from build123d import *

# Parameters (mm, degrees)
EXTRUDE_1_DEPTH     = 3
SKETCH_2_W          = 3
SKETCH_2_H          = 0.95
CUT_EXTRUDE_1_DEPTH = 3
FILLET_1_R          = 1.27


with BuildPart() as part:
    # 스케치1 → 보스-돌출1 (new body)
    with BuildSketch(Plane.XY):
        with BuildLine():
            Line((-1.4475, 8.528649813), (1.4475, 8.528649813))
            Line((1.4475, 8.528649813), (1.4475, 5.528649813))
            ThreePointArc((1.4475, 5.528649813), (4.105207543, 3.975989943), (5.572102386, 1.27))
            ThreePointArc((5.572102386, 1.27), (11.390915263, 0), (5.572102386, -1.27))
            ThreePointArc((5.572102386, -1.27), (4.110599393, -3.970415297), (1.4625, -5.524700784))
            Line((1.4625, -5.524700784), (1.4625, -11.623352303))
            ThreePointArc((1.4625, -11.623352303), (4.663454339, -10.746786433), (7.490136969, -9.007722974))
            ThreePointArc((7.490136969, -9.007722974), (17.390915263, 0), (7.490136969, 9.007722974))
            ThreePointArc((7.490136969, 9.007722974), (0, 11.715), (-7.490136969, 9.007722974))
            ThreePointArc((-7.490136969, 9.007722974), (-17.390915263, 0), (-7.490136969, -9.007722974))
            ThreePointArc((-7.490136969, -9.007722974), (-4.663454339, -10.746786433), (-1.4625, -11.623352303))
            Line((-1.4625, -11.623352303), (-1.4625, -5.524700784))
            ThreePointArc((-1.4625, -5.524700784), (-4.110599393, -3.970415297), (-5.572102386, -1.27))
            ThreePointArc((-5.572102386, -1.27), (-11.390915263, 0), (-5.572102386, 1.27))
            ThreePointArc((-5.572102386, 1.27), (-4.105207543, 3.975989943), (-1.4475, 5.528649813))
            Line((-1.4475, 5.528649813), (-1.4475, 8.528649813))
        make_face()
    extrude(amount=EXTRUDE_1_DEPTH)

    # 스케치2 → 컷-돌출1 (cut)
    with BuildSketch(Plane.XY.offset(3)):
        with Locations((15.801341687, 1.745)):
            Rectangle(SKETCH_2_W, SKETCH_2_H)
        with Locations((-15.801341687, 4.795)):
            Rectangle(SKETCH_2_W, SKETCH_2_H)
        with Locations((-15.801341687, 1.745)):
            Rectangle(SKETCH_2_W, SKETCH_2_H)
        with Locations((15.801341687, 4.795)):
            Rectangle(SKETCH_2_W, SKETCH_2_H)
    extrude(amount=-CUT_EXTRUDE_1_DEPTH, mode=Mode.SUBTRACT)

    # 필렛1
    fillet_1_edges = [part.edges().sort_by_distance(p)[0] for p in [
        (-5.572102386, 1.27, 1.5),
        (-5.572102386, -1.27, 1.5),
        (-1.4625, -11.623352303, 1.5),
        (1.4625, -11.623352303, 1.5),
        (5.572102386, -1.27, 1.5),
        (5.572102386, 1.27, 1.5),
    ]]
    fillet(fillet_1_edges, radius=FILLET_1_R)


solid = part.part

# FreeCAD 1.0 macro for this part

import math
import FreeCAD as App
import Part
import Sketcher
Q = App.Units.Quantity


def edges_at(feature, points):
    """Names of the edges that pass closest to the given points."""
    edges = feature.Shape.Edges
    near = lambda p: min(range(len(edges)), key=lambda i: edges[i].distToShape(Part.Vertex(*p))[0])
    return sorted({f"Edge{near(p) + 1}" for p in points})

doc = App.newDocument("Part")
params = doc.addObject("Spreadsheet::Sheet", "Params")
for row, (alias, value) in enumerate([
    ("sketch1_radius", "0.12 in"),
    ("sketch1_radius2", "0.225 in"),
    ("pad1_length", "3 mm"),
    ("pocket1_length", "3 mm"),
    ("fillet_radius", "0.05 in"),
], start=1):
    params.set(f"A{row}", alias)
    params.set(f"B{row}", "=" + value)
    params.setAlias(f"B{row}", alias)

body = doc.addObject("PartDesign::Body", "Body")

# Sketch on XY plane
sketch1 = body.newObject("Sketcher::SketchObject", "Sketch")
sketch1.AttachmentSupport = (doc.getObject("XY_Plane"), [""])
sketch1.MapMode = "FlatFace"
sketch1.addGeometry(Part.LineSegment(App.Vector(-1.4475, 8.52865, 0), App.Vector(1.4475, 8.52865, 0)), False)
sketch1.addGeometry(Part.LineSegment(App.Vector(1.4475, 8.52865, 0), App.Vector(1.4475, 5.52865, 0)), False)
sketch1.addGeometry(Part.ArcOfCircle(Part.Circle(App.Vector(0, 0, 0), App.Vector(0, 0, 1), 5.715), math.radians(12.839588), math.radians(75.328259)), False)
sketch1.addGeometry(Part.ArcOfCircle(Part.Circle(App.Vector(8.342915, 0, 0), App.Vector(0, 0, 1), 3.048), math.radians(-155.375682), math.radians(155.375682)), False)
sketch1.addGeometry(Part.ArcOfCircle(Part.Circle(App.Vector(0, 0, 0), App.Vector(0, 0, 1), 5.715), math.radians(-75.172752), math.radians(-12.839588)), False)
sketch1.addGeometry(Part.LineSegment(App.Vector(1.4625, -5.524701, 0), App.Vector(1.4625, -11.623352, 0)), False)
sketch1.addGeometry(Part.ArcOfCircle(Part.Circle(App.Vector(0, 0, 0), App.Vector(0, 0, 1), 11.715), math.radians(-82.828487), math.radians(-50.255667)), False)
sketch1.addGeometry(Part.ArcOfCircle(Part.Circle(App.Vector(8.342915, 0, 0), App.Vector(0, 0, 1), 9.048), math.radians(-95.408182), math.radians(95.408182)), False)
sketch1.addGeometry(Part.ArcOfCircle(Part.Circle(App.Vector(0, 0, 0), App.Vector(0, 0, 1), 11.715), math.radians(50.255667), math.radians(129.744333)), False)
sketch1.addGeometry(Part.ArcOfCircle(Part.Circle(App.Vector(-8.342915, 0, 0), App.Vector(0, 0, 1), 9.048), math.radians(84.591818), math.radians(275.408182)), False)
sketch1.addGeometry(Part.ArcOfCircle(Part.Circle(App.Vector(0, 0, 0), App.Vector(0, 0, 1), 11.715), math.radians(-129.744333), math.radians(-97.171513)), False)
sketch1.addGeometry(Part.LineSegment(App.Vector(-1.4625, -11.623352, 0), App.Vector(-1.4625, -5.524701, 0)), False)
sketch1.addGeometry(Part.ArcOfCircle(Part.Circle(App.Vector(0, 0, 0), App.Vector(0, 0, 1), 5.715), math.radians(-167.160412), math.radians(-104.827248)), False)
sketch1.addGeometry(Part.ArcOfCircle(Part.Circle(App.Vector(-8.342915, 0, 0), App.Vector(0, 0, 1), 3.048), math.radians(24.624318), math.radians(335.375682)), False)
sketch1.addGeometry(Part.ArcOfCircle(Part.Circle(App.Vector(0, 0, 0), App.Vector(0, 0, 1), 5.715), math.radians(104.671741), math.radians(167.160412)), False)
sketch1.addGeometry(Part.LineSegment(App.Vector(-1.4475, 5.52865, 0), App.Vector(-1.4475, 8.52865, 0)), False)
sketch1.addConstraint(Sketcher.Constraint("Coincident", 0, 2, 1, 1))
sketch1.addConstraint(Sketcher.Constraint("Coincident", 1, 2, 2, 2))
sketch1.addConstraint(Sketcher.Constraint("Coincident", 2, 1, 3, 2))
sketch1.addConstraint(Sketcher.Constraint("Coincident", 3, 1, 4, 2))
sketch1.addConstraint(Sketcher.Constraint("Coincident", 4, 1, 5, 1))
sketch1.addConstraint(Sketcher.Constraint("Coincident", 5, 2, 6, 1))
sketch1.addConstraint(Sketcher.Constraint("Coincident", 6, 2, 7, 1))
sketch1.addConstraint(Sketcher.Constraint("Coincident", 7, 2, 8, 1))
sketch1.addConstraint(Sketcher.Constraint("Coincident", 8, 2, 9, 1))
sketch1.addConstraint(Sketcher.Constraint("Coincident", 9, 2, 10, 1))
sketch1.addConstraint(Sketcher.Constraint("Coincident", 10, 2, 11, 1))
sketch1.addConstraint(Sketcher.Constraint("Coincident", 11, 2, 12, 2))
sketch1.addConstraint(Sketcher.Constraint("Coincident", 12, 1, 13, 2))
sketch1.addConstraint(Sketcher.Constraint("Coincident", 13, 1, 14, 2))
sketch1.addConstraint(Sketcher.Constraint("Coincident", 14, 1, 15, 1))
sketch1.addConstraint(Sketcher.Constraint("Coincident", 15, 2, 0, 1))
sketch1.addConstraint(Sketcher.Constraint("Horizontal", 0))
sketch1.addConstraint(Sketcher.Constraint("Vertical", 1))
sketch1.addConstraint(Sketcher.Constraint("Vertical", 5))
sketch1.addConstraint(Sketcher.Constraint("Vertical", 11))
sketch1.addConstraint(Sketcher.Constraint("Vertical", 15))
sketch1.addConstraint(Sketcher.Constraint("Coincident", 2, 3, -1, 1))
sketch1.addConstraint(Sketcher.Constraint("Coincident", 4, 3, -1, 1))
sketch1.addConstraint(Sketcher.Constraint("Coincident", 6, 3, -1, 1))
sketch1.addConstraint(Sketcher.Constraint("Coincident", 8, 3, -1, 1))
sketch1.addConstraint(Sketcher.Constraint("Coincident", 10, 3, -1, 1))
sketch1.addConstraint(Sketcher.Constraint("Coincident", 12, 3, -1, 1))
sketch1.addConstraint(Sketcher.Constraint("Coincident", 14, 3, -1, 1))
sketch1.addConstraint(Sketcher.Constraint("Coincident", 7, 3, 3, 3))
sketch1.addConstraint(Sketcher.Constraint("Coincident", 13, 3, 9, 3))
sketch1.addConstraint(Sketcher.Constraint("Equal", 2, 4))
sketch1.addConstraint(Sketcher.Constraint("Equal", 6, 8))
sketch1.addConstraint(Sketcher.Constraint("Equal", 7, 9))
sketch1.addConstraint(Sketcher.Constraint("Equal", 8, 10))
sketch1.addConstraint(Sketcher.Constraint("Equal", 4, 12))
sketch1.addConstraint(Sketcher.Constraint("Equal", 3, 13))
sketch1.addConstraint(Sketcher.Constraint("Equal", 12, 14))
sketch1.addConstraint(Sketcher.Constraint("Symmetric", 3, 3, 9, 3, -1, 1))
sketch1.addConstraint(Sketcher.Constraint("PointOnObject", 3, 3, -1))
sketch1.addConstraint(Sketcher.Constraint("Horizontal", 5, 2, 10, 2))
sketch1.addConstraint(Sketcher.Constraint("Horizontal", 1, 2, 14, 1))
sketch1.addConstraint(Sketcher.Constraint("Radius", 3, Q("0.12 in")))
sketch1.addConstraint(Sketcher.Constraint("Radius", 2, Q("0.225 in")))
sketch1.addConstraint(Sketcher.Constraint("DistanceY", 3, 1, 2, 1, Q("0.1 in")))
sketch1.addConstraint(Sketcher.Constraint("Radius", 6, Q("11.715 mm")))
sketch1.addConstraint(Sketcher.Constraint("Radius", 7, Q("9.048 mm")))
sketch1.addConstraint(Sketcher.Constraint("DistanceX", 0, 1, 0, 2, Q("2.895 mm")))
sketch1.addConstraint(Sketcher.Constraint("DistanceY", 1, 2, 1, 1, Q("3 mm")))
sketch1.addConstraint(Sketcher.Constraint("DistanceY", 5, 2, 5, 1, Q("6.098652 mm")))
sketch1.setExpression("Constraints[41]", "Params.sketch1_radius")
sketch1.setExpression("Constraints[42]", "Params.sketch1_radius2")
pad1 = body.newObject("PartDesign::Pad", "Pad")
pad1.Profile = sketch1
pad1.setExpression("Length", "Params.pad1_length")

# Sketch on XY plane
sketch2 = body.newObject("Sketcher::SketchObject", "Sketch001")
sketch2.AttachmentSupport = (doc.getObject("XY_Plane"), [""])
sketch2.MapMode = "FlatFace"
sketch2.AttachmentOffset = App.Placement(App.Vector(0, 0, 3), App.Rotation())
sketch2.addGeometry(Part.LineSegment(App.Vector(14.301342, 2.22, 0), App.Vector(14.301342, 1.27, 0)), False)
sketch2.addGeometry(Part.LineSegment(App.Vector(14.301342, 1.27, 0), App.Vector(17.301342, 1.27, 0)), False)
sketch2.addGeometry(Part.LineSegment(App.Vector(17.301342, 1.27, 0), App.Vector(17.301342, 2.22, 0)), False)
sketch2.addGeometry(Part.LineSegment(App.Vector(17.301342, 2.22, 0), App.Vector(14.301342, 2.22, 0)), False)
sketch2.addGeometry(Part.LineSegment(App.Vector(-17.301342, 5.27, 0), App.Vector(-17.301342, 4.32, 0)), False)
sketch2.addGeometry(Part.LineSegment(App.Vector(-17.301342, 4.32, 0), App.Vector(-14.301342, 4.32, 0)), False)
sketch2.addGeometry(Part.LineSegment(App.Vector(-14.301342, 4.32, 0), App.Vector(-14.301342, 5.27, 0)), False)
sketch2.addGeometry(Part.LineSegment(App.Vector(-14.301342, 5.27, 0), App.Vector(-17.301342, 5.27, 0)), False)
sketch2.addGeometry(Part.LineSegment(App.Vector(-17.301342, 2.22, 0), App.Vector(-17.301342, 1.27, 0)), False)
sketch2.addGeometry(Part.LineSegment(App.Vector(-17.301342, 1.27, 0), App.Vector(-14.301342, 1.27, 0)), False)
sketch2.addGeometry(Part.LineSegment(App.Vector(-14.301342, 1.27, 0), App.Vector(-14.301342, 2.22, 0)), False)
sketch2.addGeometry(Part.LineSegment(App.Vector(-14.301342, 2.22, 0), App.Vector(-17.301342, 2.22, 0)), False)
sketch2.addGeometry(Part.LineSegment(App.Vector(14.301342, 5.27, 0), App.Vector(14.301342, 4.32, 0)), False)
sketch2.addGeometry(Part.LineSegment(App.Vector(14.301342, 4.32, 0), App.Vector(17.301342, 4.32, 0)), False)
sketch2.addGeometry(Part.LineSegment(App.Vector(17.301342, 4.32, 0), App.Vector(17.301342, 5.27, 0)), False)
sketch2.addGeometry(Part.LineSegment(App.Vector(17.301342, 5.27, 0), App.Vector(14.301342, 5.27, 0)), False)
sketch2.addConstraint(Sketcher.Constraint("Coincident", 0, 2, 1, 1))
sketch2.addConstraint(Sketcher.Constraint("Coincident", 1, 2, 2, 1))
sketch2.addConstraint(Sketcher.Constraint("Coincident", 2, 2, 3, 1))
sketch2.addConstraint(Sketcher.Constraint("Coincident", 3, 2, 0, 1))
sketch2.addConstraint(Sketcher.Constraint("Coincident", 4, 2, 5, 1))
sketch2.addConstraint(Sketcher.Constraint("Coincident", 5, 2, 6, 1))
sketch2.addConstraint(Sketcher.Constraint("Coincident", 6, 2, 7, 1))
sketch2.addConstraint(Sketcher.Constraint("Coincident", 7, 2, 4, 1))
sketch2.addConstraint(Sketcher.Constraint("Coincident", 8, 2, 9, 1))
sketch2.addConstraint(Sketcher.Constraint("Coincident", 9, 2, 10, 1))
sketch2.addConstraint(Sketcher.Constraint("Coincident", 10, 2, 11, 1))
sketch2.addConstraint(Sketcher.Constraint("Coincident", 11, 2, 8, 1))
sketch2.addConstraint(Sketcher.Constraint("Coincident", 12, 2, 13, 1))
sketch2.addConstraint(Sketcher.Constraint("Coincident", 13, 2, 14, 1))
sketch2.addConstraint(Sketcher.Constraint("Coincident", 14, 2, 15, 1))
sketch2.addConstraint(Sketcher.Constraint("Coincident", 15, 2, 12, 1))
sketch2.addConstraint(Sketcher.Constraint("Vertical", 0))
sketch2.addConstraint(Sketcher.Constraint("Horizontal", 1))
sketch2.addConstraint(Sketcher.Constraint("Vertical", 2))
sketch2.addConstraint(Sketcher.Constraint("Horizontal", 3))
sketch2.addConstraint(Sketcher.Constraint("Vertical", 4))
sketch2.addConstraint(Sketcher.Constraint("Horizontal", 5))
sketch2.addConstraint(Sketcher.Constraint("Vertical", 6))
sketch2.addConstraint(Sketcher.Constraint("Horizontal", 7))
sketch2.addConstraint(Sketcher.Constraint("Vertical", 8))
sketch2.addConstraint(Sketcher.Constraint("Horizontal", 9))
sketch2.addConstraint(Sketcher.Constraint("Vertical", 10))
sketch2.addConstraint(Sketcher.Constraint("Horizontal", 11))
sketch2.addConstraint(Sketcher.Constraint("Vertical", 12))
sketch2.addConstraint(Sketcher.Constraint("Horizontal", 13))
sketch2.addConstraint(Sketcher.Constraint("Vertical", 14))
sketch2.addConstraint(Sketcher.Constraint("Horizontal", 15))
sketch2.addConstraint(Sketcher.Constraint("Symmetric", 1, 2, 8, 2, -2))
sketch2.addConstraint(Sketcher.Constraint("Symmetric", 3, 2, 10, 2, -2))
sketch2.addConstraint(Sketcher.Constraint("Symmetric", 5, 2, 12, 2, -2))
sketch2.addConstraint(Sketcher.Constraint("Symmetric", 7, 2, 14, 2, -2))
sketch2.addConstraint(Sketcher.Constraint("Vertical", 7, 2, 8, 2))
sketch2.addConstraint(Sketcher.Constraint("Vertical", 6, 2, 9, 2))
sketch2.addConstraint(Sketcher.Constraint("Equal", 2, 4))
sketch2.addConstraint(Sketcher.Constraint("DistanceY", -1, 1, 0, 2, Q("0.05 in")))
sketch2.addConstraint(Sketcher.Constraint("DistanceX", 1, 1, 1, 2, Q("3 mm")))
sketch2.addConstraint(Sketcher.Constraint("DistanceY", 0, 2, 0, 1, Q("0.95 mm")))
sketch2.addConstraint(Sketcher.Constraint("DistanceX", 4, 2, 3, 2, Q("1.2442001 in")))
sketch2.addConstraint(Sketcher.Constraint("DistanceY", -1, 1, 4, 2, Q("4.32 mm")))
pocket1 = body.newObject("PartDesign::Pocket", "Pocket")
pocket1.Profile = sketch2
pocket1.setExpression("Length", "Params.pocket1_length")
doc.recompute()

fillet = body.newObject("PartDesign::Fillet", "Fillet")
fillet.Base = (pocket1, edges_at(pocket1, [
    (-5.572, 1.27, 1.5),
    (-5.572, -1.27, 1.5),
    (-1.462, -11.623, 1.5),
    (1.462, -11.623, 1.5),
    (5.572, -1.27, 1.5),
    (5.572, 1.27, 1.5),
]))
fillet.setExpression("Radius", "Params.fillet_radius")

doc.recompute()
